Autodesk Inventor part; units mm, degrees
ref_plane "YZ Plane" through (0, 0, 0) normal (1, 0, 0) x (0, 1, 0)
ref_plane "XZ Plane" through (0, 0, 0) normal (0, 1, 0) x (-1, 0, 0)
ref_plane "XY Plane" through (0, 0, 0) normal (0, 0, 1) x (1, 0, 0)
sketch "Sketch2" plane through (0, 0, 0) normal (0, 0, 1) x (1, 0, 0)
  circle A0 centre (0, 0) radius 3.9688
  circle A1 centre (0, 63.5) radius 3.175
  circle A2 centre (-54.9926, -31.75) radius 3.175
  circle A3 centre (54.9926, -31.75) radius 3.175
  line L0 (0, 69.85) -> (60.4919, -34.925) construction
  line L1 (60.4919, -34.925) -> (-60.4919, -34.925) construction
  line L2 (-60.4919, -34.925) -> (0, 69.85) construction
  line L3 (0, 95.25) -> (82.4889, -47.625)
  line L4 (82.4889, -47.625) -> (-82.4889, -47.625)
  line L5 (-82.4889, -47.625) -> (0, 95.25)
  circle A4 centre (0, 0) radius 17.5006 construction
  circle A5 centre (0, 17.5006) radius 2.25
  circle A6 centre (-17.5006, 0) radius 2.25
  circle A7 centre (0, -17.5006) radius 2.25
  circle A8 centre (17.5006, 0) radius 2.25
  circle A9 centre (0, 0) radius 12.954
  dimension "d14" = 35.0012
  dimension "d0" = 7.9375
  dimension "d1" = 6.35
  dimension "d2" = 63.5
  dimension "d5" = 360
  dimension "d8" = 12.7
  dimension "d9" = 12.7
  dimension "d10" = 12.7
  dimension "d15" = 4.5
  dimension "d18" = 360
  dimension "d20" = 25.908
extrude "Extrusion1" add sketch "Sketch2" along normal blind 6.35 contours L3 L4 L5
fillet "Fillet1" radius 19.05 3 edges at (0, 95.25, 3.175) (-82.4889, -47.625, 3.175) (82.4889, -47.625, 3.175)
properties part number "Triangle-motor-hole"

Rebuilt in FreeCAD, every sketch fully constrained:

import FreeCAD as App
import Part
import Sketcher
Q = App.Units.Quantity


def edges_at(feature, points):
    """Names of the edges that pass closest to the given points."""
    edges = feature.Shape.Edges
    near = lambda p: min(range(len(edges)), key=lambda i: edges[i].distToShape(Part.Vertex(*p))[0])
    return sorted({f"Edge{near(p) + 1}" for p in points})

doc = App.newDocument("Part")
params = doc.addObject("Spreadsheet::Sheet", "Params")
for row, (alias, value) in enumerate([
    ("sketch1_diameter", "0.25 in"),
    ("sketch1_diameter2", "1.02 in"),
    ("pad1_length", "0.25 in"),
    ("fillet_radius", "0.75 in"),
], start=1):
    params.set(f"A{row}", alias)
    params.set(f"B{row}", "=" + value)
    params.setAlias(f"B{row}", alias)

body = doc.addObject("PartDesign::Body", "Body")

# Sketch on XY plane
sketch1 = body.newObject("Sketcher::SketchObject", "Sketch")
sketch1.AttachmentSupport = (doc.getObject("XY_Plane"), [""])
sketch1.MapMode = "FlatFace"
sketch1.addGeometry(Part.LineSegment(App.Vector(82.4889, -47.625, 0), App.Vector(0, 95.25, 0)), False)
sketch1.addGeometry(Part.LineSegment(App.Vector(0, 95.25, 0), App.Vector(-82.4889, -47.625, 0)), False)
sketch1.addGeometry(Part.LineSegment(App.Vector(-82.4889, -47.625, 0), App.Vector(82.4889, -47.625, 0)), False)
sketch1.addGeometry(Part.Circle(App.Vector(-54.9926, -31.75, 0), App.Vector(0, 0, 1), 3.175), False)
sketch1.addGeometry(Part.Circle(App.Vector(-17.5006, 0, 0), App.Vector(0, 0, 1), 2.25), False)
sketch1.addGeometry(Part.Circle(App.Vector(0, -17.5006, 0), App.Vector(0, 0, 1), 2.25), False)
sketch1.addGeometry(Part.Circle(App.Vector(54.9926, -31.75, 0), App.Vector(0, 0, 1), 3.175), False)
sketch1.addGeometry(Part.Circle(App.Vector(0, 0, 0), App.Vector(0, 0, 1), 12.954), False)
sketch1.addGeometry(Part.Circle(App.Vector(17.5006, 0, 0), App.Vector(0, 0, 1), 2.25), False)
sketch1.addGeometry(Part.Circle(App.Vector(0, 17.5006, 0), App.Vector(0, 0, 1), 2.25), False)
sketch1.addGeometry(Part.Circle(App.Vector(0, 63.5, 0), App.Vector(0, 0, 1), 3.175), False)
sketch1.addConstraint(Sketcher.Constraint("Coincident", 0, 2, 1, 1))
sketch1.addConstraint(Sketcher.Constraint("Coincident", 1, 2, 2, 1))
sketch1.addConstraint(Sketcher.Constraint("Coincident", 2, 2, 0, 1))
sketch1.addConstraint(Sketcher.Constraint("Horizontal", 2))
sketch1.addConstraint(Sketcher.Constraint("Coincident", 7, 3, -1, 1))
sketch1.addConstraint(Sketcher.Constraint("Equal", 4, 5))
sketch1.addConstraint(Sketcher.Constraint("Equal", 3, 6))
sketch1.addConstraint(Sketcher.Constraint("Equal", 5, 8))
sketch1.addConstraint(Sketcher.Constraint("Equal", 8, 9))
sketch1.addConstraint(Sketcher.Constraint("Equal", 6, 10))
sketch1.addConstraint(Sketcher.Constraint("Symmetric", 4, 3, 8, 3, -1, 1))
sketch1.addConstraint(Sketcher.Constraint("Symmetric", 5, 3, 9, 3, -1, 1))
sketch1.addConstraint(Sketcher.Constraint("Symmetric", 3, 3, 6, 3, -2))
sketch1.addConstraint(Sketcher.Constraint("PointOnObject", 4, 3, -1))
sketch1.addConstraint(Sketcher.Constraint("PointOnObject", 5, 3, -2))
sketch1.addConstraint(Sketcher.Constraint("PointOnObject", 10, 3, -2))
sketch1.addConstraint(Sketcher.Constraint("PointOnObject", 0, 2, -2))
sketch1.addConstraint(Sketcher.Constraint("Equal", 0, 1))
sketch1.addConstraint(Sketcher.Constraint("Diameter", 3, Q("0.25 in")))
sketch1.addConstraint(Sketcher.Constraint("Diameter", 7, Q("1.02 in")))
sketch1.addConstraint(Sketcher.Constraint("DistanceY", -1, 1, 10, 3, Q("2.5 in")))
sketch1.addConstraint(Sketcher.Constraint("Diameter", 4, Q("4.5 mm")))
sketch1.addConstraint(Sketcher.Constraint("Angle", 0, Q("120 deg")))
sketch1.addConstraint(Sketcher.Constraint("DistanceX", 4, 3, 8, 3, Q("1.378 in")))
sketch1.addConstraint(Sketcher.Constraint("DistanceY", 5, 3, 9, 3, Q("1.378 in")))
sketch1.addConstraint(Sketcher.Constraint("DistanceY", 3, 3, -1, 1, Q("1.25 in")))
sketch1.addConstraint(Sketcher.Constraint("DistanceY", -1, 1, 0, 2, Q("3.75 in")))
sketch1.addConstraint(Sketcher.Constraint("DistanceX", 2, 1, 2, 2, Q("6.4952 in")))
sketch1.addConstraint(Sketcher.Constraint("DistanceX", 3, 3, -1, 1, Q("54.9926 mm")))
sketch1.setExpression("Constraints[18]", "Params.sketch1_diameter")
sketch1.setExpression("Constraints[19]", "Params.sketch1_diameter2")
pad1 = body.newObject("PartDesign::Pad", "Pad")
pad1.Profile = sketch1
pad1.setExpression("Length", "Params.pad1_length")
doc.recompute()

fillet = body.newObject("PartDesign::Fillet", "Fillet")
fillet.Base = (pad1, edges_at(pad1, [(0, 95.25, 3.175), (-82.489, -47.625, 3.175), (82.489, -47.625, 3.175)]))
fillet.setExpression("Radius", "Params.fillet_radius")

doc.recompute()
